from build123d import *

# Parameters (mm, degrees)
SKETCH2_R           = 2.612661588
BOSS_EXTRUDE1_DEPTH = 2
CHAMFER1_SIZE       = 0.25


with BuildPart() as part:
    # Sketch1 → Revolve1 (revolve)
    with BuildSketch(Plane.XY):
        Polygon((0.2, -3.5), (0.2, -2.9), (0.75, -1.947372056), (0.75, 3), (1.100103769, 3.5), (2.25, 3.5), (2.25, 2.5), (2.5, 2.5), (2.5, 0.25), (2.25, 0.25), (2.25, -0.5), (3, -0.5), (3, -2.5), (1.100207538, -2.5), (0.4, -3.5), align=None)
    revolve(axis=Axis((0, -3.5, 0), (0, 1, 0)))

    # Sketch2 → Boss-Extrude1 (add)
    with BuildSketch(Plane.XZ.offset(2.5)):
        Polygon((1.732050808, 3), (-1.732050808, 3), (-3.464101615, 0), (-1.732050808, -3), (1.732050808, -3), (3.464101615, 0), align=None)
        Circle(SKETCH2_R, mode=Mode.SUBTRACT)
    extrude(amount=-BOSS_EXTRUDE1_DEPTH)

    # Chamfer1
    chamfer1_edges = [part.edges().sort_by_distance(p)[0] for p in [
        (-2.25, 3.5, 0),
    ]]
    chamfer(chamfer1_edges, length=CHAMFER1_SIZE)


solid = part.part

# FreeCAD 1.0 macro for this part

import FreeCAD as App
import Part
import Sketcher
from FreeCAD import Vector
Q = App.Units.Quantity


def edges_at(feature, points):
    """Names of the edges that pass closest to the given points."""
    edges = feature.Shape.Edges
    near = lambda p: min(range(len(edges)), key=lambda i: edges[i].distToShape(Part.Vertex(*p))[0])
    return sorted({f"Edge{near(p) + 1}" for p in points})

doc = App.newDocument("Part")
body = doc.addObject("PartDesign::Body", "Body")

sketch1 = body.newObject("Sketcher::SketchObject", "Sketch")
sketch1.AttachmentSupport = (doc.getObject("XY_Plane"), [""])
sketch1.MapMode = "FlatFace"
sketch1.addGeometry(Part.LineSegment(Vector(0.2, -2.9, 0), Vector(0.2, -3.5, 0)), False)
sketch1.addGeometry(Part.LineSegment(Vector(0.2, -3.5, 0), Vector(0.4, -3.5, 0)), False)
sketch1.addGeometry(Part.LineSegment(Vector(0.4, -3.5, 0), Vector(1.1, -2.5, 0)), False)
sketch1.addGeometry(Part.LineSegment(Vector(1.1, -2.5, 0), Vector(3, -2.5, 0)), False)
sketch1.addGeometry(Part.LineSegment(Vector(3, -2.5, 0), Vector(3, -0.5, 0)), False)
sketch1.addGeometry(Part.LineSegment(Vector(3, -0.5, 0), Vector(2.25, -0.5, 0)), False)
sketch1.addGeometry(Part.LineSegment(Vector(2.25, -0.5, 0), Vector(2.25, 0.25, 0)), False)
sketch1.addGeometry(Part.LineSegment(Vector(2.25, 0.25, 0), Vector(2.5, 0.25, 0)), False)
sketch1.addGeometry(Part.LineSegment(Vector(2.5, 0.25, 0), Vector(2.5, 2.5, 0)), False)
sketch1.addGeometry(Part.LineSegment(Vector(2.5, 2.5, 0), Vector(2.25, 2.5, 0)), False)
sketch1.addGeometry(Part.LineSegment(Vector(2.25, 2.5, 0), Vector(2.25, 3.5, 0)), False)
sketch1.addGeometry(Part.LineSegment(Vector(2.25, 3.5, 0), Vector(1.1, 3.5, 0)), False)
sketch1.addGeometry(Part.LineSegment(Vector(1.1, 3.5, 0), Vector(0.75, 3, 0)), False)
sketch1.addGeometry(Part.LineSegment(Vector(0.75, 3, 0), Vector(0.75, -1.95, 0)), False)
sketch1.addGeometry(Part.LineSegment(Vector(0.75, -1.95, 0), Vector(0.2, -2.9, 0)), False)
sketch1.addConstraint(Sketcher.Constraint("Coincident", 0, 2, 1, 1))
sketch1.addConstraint(Sketcher.Constraint("Coincident", 1, 2, 2, 1))
sketch1.addConstraint(Sketcher.Constraint("Coincident", 2, 2, 3, 1))
sketch1.addConstraint(Sketcher.Constraint("Coincident", 3, 2, 4, 1))
sketch1.addConstraint(Sketcher.Constraint("Coincident", 4, 2, 5, 1))
sketch1.addConstraint(Sketcher.Constraint("Coincident", 5, 2, 6, 1))
sketch1.addConstraint(Sketcher.Constraint("Coincident", 6, 2, 7, 1))
sketch1.addConstraint(Sketcher.Constraint("Coincident", 7, 2, 8, 1))
sketch1.addConstraint(Sketcher.Constraint("Coincident", 8, 2, 9, 1))
sketch1.addConstraint(Sketcher.Constraint("Coincident", 9, 2, 10, 1))
sketch1.addConstraint(Sketcher.Constraint("Coincident", 10, 2, 11, 1))
sketch1.addConstraint(Sketcher.Constraint("Coincident", 11, 2, 12, 1))
sketch1.addConstraint(Sketcher.Constraint("Coincident", 12, 2, 13, 1))
sketch1.addConstraint(Sketcher.Constraint("Coincident", 13, 2, 14, 1))
sketch1.addConstraint(Sketcher.Constraint("Coincident", 14, 2, 0, 1))
sketch1.addConstraint(Sketcher.Constraint("Vertical", 0))
sketch1.addConstraint(Sketcher.Constraint("Horizontal", 1))
sketch1.addConstraint(Sketcher.Constraint("Horizontal", 3))
sketch1.addConstraint(Sketcher.Constraint("Vertical", 4))
sketch1.addConstraint(Sketcher.Constraint("Horizontal", 5))
sketch1.addConstraint(Sketcher.Constraint("Vertical", 6))
sketch1.addConstraint(Sketcher.Constraint("Horizontal", 7))
sketch1.addConstraint(Sketcher.Constraint("Vertical", 8))
sketch1.addConstraint(Sketcher.Constraint("Horizontal", 9))
sketch1.addConstraint(Sketcher.Constraint("Vertical", 10))
sketch1.addConstraint(Sketcher.Constraint("Horizontal", 11))
sketch1.addConstraint(Sketcher.Constraint("Vertical", 13))
sketch1.addConstraint(Sketcher.Constraint("Parallel", 2, 12))
sketch1.addConstraint(Sketcher.Constraint("Vertical", 6, 2, 9, 2))
sketch1.addConstraint(Sketcher.Constraint("Equal", 5, 6))
sketch1.addConstraint(Sketcher.Constraint("DistanceY", 4, 1, 4, 2, Q("2 mm")))
sketch1.addConstraint(Sketcher.Constraint("DistanceY", 10, 1, 10, 2, Q("1 mm")))
sketch1.addConstraint(Sketcher.Constraint("Angle", 2, Q("55 deg")))
sketch1.addConstraint(Sketcher.Constraint("Angle", 14, Q("-120 deg")))
sketch1.addConstraint(Sketcher.Constraint("DistanceX", 1, 1, 1, 2, Q("0.2 mm")))
sketch1.addConstraint(Sketcher.Constraint("DistanceY", 0, 2, 0, 1, Q("0.6 mm")))
sketch1.addConstraint(Sketcher.Constraint("DistanceX", -1, 1, 3, 2, Q("3 mm")))
sketch1.addConstraint(Sketcher.Constraint("DistanceY", -1, 1, 12, 2, Q("3 mm")))
sketch1.addConstraint(Sketcher.Constraint("DistanceY", 1, 2, 2, 2, Q("1 mm")))
sketch1.addConstraint(Sketcher.Constraint("DistanceY", 5, 2, 8, 2, Q("3 mm")))
sketch1.addConstraint(Sketcher.Constraint("Distance", 14, Q("1.1 mm")))
sketch1.addConstraint(Sketcher.Constraint("DistanceX", 5, 2, 5, 1, Q("0.75 mm")))
sketch1.addConstraint(Sketcher.Constraint("DistanceX", 7, 1, 7, 2, Q("0.25 mm")))
sketch1.addConstraint(Sketcher.Constraint("DistanceX", -1, 1, 0, 2, Q("0.2 mm")))
sketch1.addConstraint(Sketcher.Constraint("DistanceY", 0, 2, -1, 1, Q("3.5 mm")))
revolution = body.newObject("PartDesign::Revolution", "Revolution")
revolution.Profile = sketch1
revolution.ReferenceAxis = (sketch1, ["V_Axis"])
revolution.Angle = 360

sketch2 = body.newObject("Sketcher::SketchObject", "Sketch001")
sketch2.AttachmentSupport = (doc.getObject("XZ_Plane"), [""])
sketch2.MapMode = "FlatFace"
sketch2.AttachmentOffset = App.Placement(Vector(0, 0, 2.5), App.Rotation())
sketch2.addGeometry(Part.LineSegment(Vector(1.7, 3, 0), Vector(-1.7, 3, 0)), False)
sketch2.addGeometry(Part.LineSegment(Vector(-1.7, 3, 0), Vector(-3.5, 0, 0)), False)
sketch2.addGeometry(Part.LineSegment(Vector(-3.5, 0, 0), Vector(-1.7, -3, 0)), False)
sketch2.addGeometry(Part.LineSegment(Vector(-1.7, -3, 0), Vector(1.7, -3, 0)), False)
sketch2.addGeometry(Part.LineSegment(Vector(1.7, -3, 0), Vector(3.5, 0, 0)), False)
sketch2.addGeometry(Part.LineSegment(Vector(3.5, 0, 0), Vector(1.7, 3, 0)), False)
sketch2.addGeometry(Part.Circle(Vector(0, 0, 0), Vector(0, 0, 1), 2.6), False)
sketch2.addConstraint(Sketcher.Constraint("Coincident", 0, 2, 1, 1))
sketch2.addConstraint(Sketcher.Constraint("Coincident", 1, 2, 2, 1))
sketch2.addConstraint(Sketcher.Constraint("Coincident", 2, 2, 3, 1))
sketch2.addConstraint(Sketcher.Constraint("Coincident", 3, 2, 4, 1))
sketch2.addConstraint(Sketcher.Constraint("Coincident", 4, 2, 5, 1))
sketch2.addConstraint(Sketcher.Constraint("Coincident", 5, 2, 0, 1))
sketch2.addConstraint(Sketcher.Constraint("Horizontal", 0))
sketch2.addConstraint(Sketcher.Constraint("Horizontal", 3))
sketch2.addConstraint(Sketcher.Constraint("Coincident", 6, 3, -1, 1))
sketch2.addConstraint(Sketcher.Constraint("Symmetric", 0, 2, 3, 2, -1, 1))
sketch2.addConstraint(Sketcher.Constraint("Symmetric", 1, 2, 4, 2, -1, 1))
sketch2.addConstraint(Sketcher.Constraint("PointOnObject", 1, 2, -1))
sketch2.addConstraint(Sketcher.Constraint("Parallel", 2, 5))
sketch2.addConstraint(Sketcher.Constraint("Vertical", 0, 2, 2, 2))
sketch2.addConstraint(Sketcher.Constraint("Angle", 1, Q("-120 deg")))
sketch2.addConstraint(Sketcher.Constraint("DistanceY", -1, 1, 0, 2, Q("3 mm")))
sketch2.addConstraint(Sketcher.Constraint("Diameter", 6, Q("5.225323 mm")))
sketch2.addConstraint(Sketcher.Constraint("DistanceX", 0, 2, 0, 1, Q("3.464102 mm")))
pad1 = body.newObject("PartDesign::Pad", "Pad")
pad1.Profile = sketch2
pad1.Length = 2
pad1.Reversed = True
doc.recompute()

chamfer = body.newObject("PartDesign::Chamfer", "Chamfer")
chamfer.Base = (pad1, edges_at(pad1, [(-2.25, 3.5, 0)]))
chamfer.Size = 0.25

doc.recompute()
